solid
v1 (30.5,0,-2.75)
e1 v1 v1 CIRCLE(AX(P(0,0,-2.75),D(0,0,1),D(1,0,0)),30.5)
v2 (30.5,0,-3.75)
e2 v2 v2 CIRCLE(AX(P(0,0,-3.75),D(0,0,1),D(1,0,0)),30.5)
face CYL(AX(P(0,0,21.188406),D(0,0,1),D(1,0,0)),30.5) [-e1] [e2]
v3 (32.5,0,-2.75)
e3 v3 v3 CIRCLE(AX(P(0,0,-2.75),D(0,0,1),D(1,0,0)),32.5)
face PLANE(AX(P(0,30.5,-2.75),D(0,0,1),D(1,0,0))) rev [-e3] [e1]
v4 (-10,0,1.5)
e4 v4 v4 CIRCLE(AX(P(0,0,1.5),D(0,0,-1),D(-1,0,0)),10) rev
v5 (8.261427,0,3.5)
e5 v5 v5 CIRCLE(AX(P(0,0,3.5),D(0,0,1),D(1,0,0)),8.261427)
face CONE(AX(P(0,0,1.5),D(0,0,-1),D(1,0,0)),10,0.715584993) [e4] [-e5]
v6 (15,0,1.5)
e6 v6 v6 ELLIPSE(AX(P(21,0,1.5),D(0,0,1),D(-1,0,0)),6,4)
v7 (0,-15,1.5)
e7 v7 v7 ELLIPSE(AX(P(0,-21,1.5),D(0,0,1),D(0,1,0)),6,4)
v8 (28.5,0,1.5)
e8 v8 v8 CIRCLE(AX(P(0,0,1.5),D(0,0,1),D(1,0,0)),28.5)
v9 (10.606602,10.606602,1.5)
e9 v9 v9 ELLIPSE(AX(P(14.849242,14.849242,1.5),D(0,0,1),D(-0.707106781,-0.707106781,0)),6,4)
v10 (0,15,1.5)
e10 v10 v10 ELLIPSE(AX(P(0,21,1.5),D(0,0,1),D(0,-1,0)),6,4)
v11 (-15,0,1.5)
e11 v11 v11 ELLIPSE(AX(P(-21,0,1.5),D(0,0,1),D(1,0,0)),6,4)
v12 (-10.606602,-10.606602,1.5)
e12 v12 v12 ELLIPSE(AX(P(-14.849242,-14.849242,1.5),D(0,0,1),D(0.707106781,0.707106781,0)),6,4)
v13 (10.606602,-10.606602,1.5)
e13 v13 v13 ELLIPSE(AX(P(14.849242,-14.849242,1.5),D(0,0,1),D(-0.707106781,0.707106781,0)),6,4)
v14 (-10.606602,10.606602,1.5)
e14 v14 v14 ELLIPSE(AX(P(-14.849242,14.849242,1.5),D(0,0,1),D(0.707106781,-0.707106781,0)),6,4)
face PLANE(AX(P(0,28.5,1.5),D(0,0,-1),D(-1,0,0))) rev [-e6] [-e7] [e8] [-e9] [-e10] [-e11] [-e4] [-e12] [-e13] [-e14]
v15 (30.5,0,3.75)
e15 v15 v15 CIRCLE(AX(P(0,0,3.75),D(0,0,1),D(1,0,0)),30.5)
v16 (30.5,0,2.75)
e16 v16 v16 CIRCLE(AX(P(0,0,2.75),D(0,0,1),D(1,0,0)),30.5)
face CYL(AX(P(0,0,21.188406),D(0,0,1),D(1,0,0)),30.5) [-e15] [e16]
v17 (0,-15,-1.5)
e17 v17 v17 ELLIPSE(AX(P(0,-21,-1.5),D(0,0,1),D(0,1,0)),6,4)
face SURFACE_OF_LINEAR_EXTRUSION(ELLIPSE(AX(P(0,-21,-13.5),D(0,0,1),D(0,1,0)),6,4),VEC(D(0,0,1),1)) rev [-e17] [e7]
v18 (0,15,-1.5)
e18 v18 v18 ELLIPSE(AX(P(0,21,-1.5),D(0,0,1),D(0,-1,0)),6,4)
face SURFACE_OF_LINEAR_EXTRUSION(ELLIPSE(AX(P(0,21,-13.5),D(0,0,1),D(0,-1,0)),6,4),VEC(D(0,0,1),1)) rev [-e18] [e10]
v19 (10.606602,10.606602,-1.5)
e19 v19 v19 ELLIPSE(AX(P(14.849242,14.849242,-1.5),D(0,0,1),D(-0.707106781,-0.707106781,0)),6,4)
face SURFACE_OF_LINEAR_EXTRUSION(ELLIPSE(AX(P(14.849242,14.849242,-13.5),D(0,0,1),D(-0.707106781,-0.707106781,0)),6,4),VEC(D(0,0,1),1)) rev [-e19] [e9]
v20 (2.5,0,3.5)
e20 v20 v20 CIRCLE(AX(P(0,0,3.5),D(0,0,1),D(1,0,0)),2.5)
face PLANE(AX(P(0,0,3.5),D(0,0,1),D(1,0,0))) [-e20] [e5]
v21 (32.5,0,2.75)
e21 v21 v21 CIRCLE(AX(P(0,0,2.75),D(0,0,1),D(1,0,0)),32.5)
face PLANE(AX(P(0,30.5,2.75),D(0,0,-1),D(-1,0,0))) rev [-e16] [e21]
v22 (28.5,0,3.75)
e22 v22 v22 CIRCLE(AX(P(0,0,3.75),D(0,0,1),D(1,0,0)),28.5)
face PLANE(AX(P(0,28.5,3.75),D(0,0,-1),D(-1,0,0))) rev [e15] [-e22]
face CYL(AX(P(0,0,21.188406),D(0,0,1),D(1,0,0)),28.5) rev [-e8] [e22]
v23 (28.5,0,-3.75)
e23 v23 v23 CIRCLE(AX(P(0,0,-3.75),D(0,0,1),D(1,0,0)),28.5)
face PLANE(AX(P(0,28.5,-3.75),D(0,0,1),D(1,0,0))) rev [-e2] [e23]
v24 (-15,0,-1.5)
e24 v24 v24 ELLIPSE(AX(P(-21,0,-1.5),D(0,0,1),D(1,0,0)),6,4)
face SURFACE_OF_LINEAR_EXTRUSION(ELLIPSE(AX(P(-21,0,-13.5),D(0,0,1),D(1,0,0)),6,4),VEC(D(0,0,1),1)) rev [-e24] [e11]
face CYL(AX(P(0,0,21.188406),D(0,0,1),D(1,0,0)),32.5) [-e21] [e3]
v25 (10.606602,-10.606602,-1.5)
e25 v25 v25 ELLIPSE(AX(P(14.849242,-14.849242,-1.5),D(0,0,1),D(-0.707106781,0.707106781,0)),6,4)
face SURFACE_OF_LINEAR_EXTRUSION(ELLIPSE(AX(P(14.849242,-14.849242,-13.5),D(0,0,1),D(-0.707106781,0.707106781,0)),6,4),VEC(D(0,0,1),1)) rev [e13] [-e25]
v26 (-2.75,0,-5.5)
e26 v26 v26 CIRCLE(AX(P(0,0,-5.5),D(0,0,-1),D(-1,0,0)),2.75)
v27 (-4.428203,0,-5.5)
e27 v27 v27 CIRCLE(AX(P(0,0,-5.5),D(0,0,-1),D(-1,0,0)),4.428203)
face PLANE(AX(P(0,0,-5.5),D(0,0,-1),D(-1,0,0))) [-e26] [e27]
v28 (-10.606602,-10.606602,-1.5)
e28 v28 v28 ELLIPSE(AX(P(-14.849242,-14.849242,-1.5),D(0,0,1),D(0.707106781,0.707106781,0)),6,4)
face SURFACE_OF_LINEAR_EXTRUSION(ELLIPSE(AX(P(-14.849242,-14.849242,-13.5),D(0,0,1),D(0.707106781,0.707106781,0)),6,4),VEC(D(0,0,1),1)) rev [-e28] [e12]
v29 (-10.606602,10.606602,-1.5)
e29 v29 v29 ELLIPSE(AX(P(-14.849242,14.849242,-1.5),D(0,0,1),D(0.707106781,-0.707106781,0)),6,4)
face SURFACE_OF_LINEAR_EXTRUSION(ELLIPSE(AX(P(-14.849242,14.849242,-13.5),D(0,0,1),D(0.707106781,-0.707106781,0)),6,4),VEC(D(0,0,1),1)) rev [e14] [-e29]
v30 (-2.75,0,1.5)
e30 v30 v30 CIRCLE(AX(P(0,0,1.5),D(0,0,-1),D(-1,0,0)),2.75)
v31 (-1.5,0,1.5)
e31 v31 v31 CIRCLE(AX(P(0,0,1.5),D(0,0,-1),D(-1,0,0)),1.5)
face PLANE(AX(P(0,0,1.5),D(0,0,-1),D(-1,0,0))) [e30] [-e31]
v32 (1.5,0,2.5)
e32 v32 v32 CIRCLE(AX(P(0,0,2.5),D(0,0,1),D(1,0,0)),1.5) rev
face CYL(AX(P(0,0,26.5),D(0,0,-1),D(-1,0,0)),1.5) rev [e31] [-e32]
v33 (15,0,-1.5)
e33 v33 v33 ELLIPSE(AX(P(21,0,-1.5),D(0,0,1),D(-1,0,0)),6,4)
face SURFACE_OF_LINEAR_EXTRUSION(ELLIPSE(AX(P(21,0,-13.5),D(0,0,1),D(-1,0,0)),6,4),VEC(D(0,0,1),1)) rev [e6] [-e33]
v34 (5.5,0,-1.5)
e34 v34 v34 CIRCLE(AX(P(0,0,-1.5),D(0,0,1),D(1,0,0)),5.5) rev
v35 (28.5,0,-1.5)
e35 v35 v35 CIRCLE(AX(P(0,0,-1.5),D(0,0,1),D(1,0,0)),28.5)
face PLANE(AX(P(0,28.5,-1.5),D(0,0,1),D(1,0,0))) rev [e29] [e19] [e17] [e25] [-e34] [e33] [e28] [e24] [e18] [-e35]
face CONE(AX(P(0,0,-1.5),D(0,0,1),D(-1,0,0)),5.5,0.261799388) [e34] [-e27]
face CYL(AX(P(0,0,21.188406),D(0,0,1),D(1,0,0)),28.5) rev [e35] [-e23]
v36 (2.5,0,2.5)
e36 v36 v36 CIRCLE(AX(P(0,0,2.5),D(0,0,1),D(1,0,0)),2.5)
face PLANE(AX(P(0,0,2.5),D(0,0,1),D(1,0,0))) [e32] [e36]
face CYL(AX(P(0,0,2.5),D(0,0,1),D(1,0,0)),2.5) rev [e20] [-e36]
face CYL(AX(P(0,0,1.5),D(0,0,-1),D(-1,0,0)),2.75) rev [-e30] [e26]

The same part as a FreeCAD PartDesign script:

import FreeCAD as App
import Part
import Sketcher
from FreeCAD import Vector


def add_polygon(sketch, points):
    """Adds a closed chain of lines whose ends are joined by coincident constraints."""
    first, n = sketch.GeometryCount, len(points)
    for a, b in zip(points, points[1:] + points[:1]):
        sketch.addGeometry(Part.LineSegment(App.Vector(*a, 0), App.Vector(*b, 0)), False)
    for i in range(n):
        sketch.addConstraint(Sketcher.Constraint("Coincident", first + i, 2, first + (i + 1) % n, 1))

doc = App.newDocument("Part")
params = doc.addObject("Spreadsheet::Sheet", "Params")
for row, (alias, value) in enumerate([
    ("sketch1_width", "2 mm"),
    ("sketch1_height", "3 mm"),
    ("sketch1_height2", "1 mm"),
    ("sketch1_width2", "28.5 mm"),
    ("sketch1_height3", "5.5 mm"),
    ("revolution_angle", "360 deg"),
    ("sketch2_diameter", "20 mm"),
    ("pad1_length", "2 mm"),
    ("pad1_taper", "-41 deg"),
    ("sketch3_diameter", "11 mm"),
    ("pad2_length", "4 mm"),
    ("pad2_taper", "-15 deg"),
    ("sketch4_diameter", "5 mm"),
    ("pocket1_length", "1 mm"),
    ("sketch5_diameter", "3 mm"),
    ("pocket3_length", "15 mm"),
    ("sketch7_diameter", "5.5 mm"),
    ("pocket4_length", "7 mm"),
], start=1):
    params.set(f"A{row}", alias)
    params.set(f"B{row}", "=" + value)
    params.setAlias(f"B{row}", alias)

body = doc.addObject("PartDesign::Body", "Body")

sketch1 = body.newObject("Sketcher::SketchObject", "Sketch")
sketch1.AttachmentSupport = (doc.getObject("YZ_Plane"), [""])
sketch1.MapMode = "FlatFace"
add_polygon(sketch1, [(28.5, 3.8), (28.5, 1.5), (0, 1.5), (0, -1.5), (28.5, -1.5), (28.5, -3.8), (30.5, -3.8), (30.5, -2.8), (32.5, -2.8), (32.5, 2.8), (30.5, 2.8), (30.5, 3.8)])
sketch1.addConstraint(Sketcher.Constraint("Vertical", 0))
sketch1.addConstraint(Sketcher.Constraint("Horizontal", 1))
sketch1.addConstraint(Sketcher.Constraint("Vertical", 2))
sketch1.addConstraint(Sketcher.Constraint("Horizontal", 3))
sketch1.addConstraint(Sketcher.Constraint("Vertical", 4))
sketch1.addConstraint(Sketcher.Constraint("Horizontal", 5))
sketch1.addConstraint(Sketcher.Constraint("Vertical", 6))
sketch1.addConstraint(Sketcher.Constraint("Horizontal", 7))
sketch1.addConstraint(Sketcher.Constraint("Vertical", 8))
sketch1.addConstraint(Sketcher.Constraint("Horizontal", 9))
sketch1.addConstraint(Sketcher.Constraint("Vertical", 10))
sketch1.addConstraint(Sketcher.Constraint("Horizontal", 11))
sketch1.addConstraint(Sketcher.Constraint("Symmetric", 1, 2, 2, 2, -1, 1))
sketch1.addConstraint(Sketcher.Constraint("Symmetric", 6, 2, 9, 2, -1))
sketch1.addConstraint(Sketcher.Constraint("Symmetric", 4, 2, 11, 2, -1))
sketch1.addConstraint(Sketcher.Constraint("Equal", 5, 7))
sketch1.addConstraint(Sketcher.Constraint("DistanceX", 5, 1, 5, 2, 2.0))
sketch1.addConstraint(Sketcher.Constraint("DistanceY", 2, 2, 2, 1, 3.0))
sketch1.addConstraint(Sketcher.Constraint("DistanceY", 6, 1, 6, 2, 1.0))
sketch1.addConstraint(Sketcher.Constraint("DistanceX", 1, 2, 1, 1, 28.5))
sketch1.addConstraint(Sketcher.Constraint("DistanceY", 8, 1, 8, 2, 5.5))
sketch1.setExpression("Constraints[28]", "Params.sketch1_width")
sketch1.setExpression("Constraints[29]", "Params.sketch1_height")
sketch1.setExpression("Constraints[30]", "Params.sketch1_height2")
sketch1.setExpression("Constraints[31]", "Params.sketch1_width2")
sketch1.setExpression("Constraints[32]", "Params.sketch1_height3")
revolution = body.newObject("PartDesign::Revolution", "Revolution")
revolution.Profile = sketch1
revolution.ReferenceAxis = (sketch1, ["V_Axis"])
revolution.setExpression("Angle", "Params.revolution_angle")

sketch2 = body.newObject("Sketcher::SketchObject", "Sketch001")
sketch2.AttachmentSupport = (doc.getObject("XY_Plane"), [""])
sketch2.MapMode = "FlatFace"
sketch2.AttachmentOffset = App.Placement(Vector(0, 0, 1.5), App.Rotation())
sketch2.addGeometry(Part.Circle(Vector(0, 0, 0), Vector(0, 0, 1), 10), False)
sketch2.addConstraint(Sketcher.Constraint("Coincident", 0, 3, -1, 1))
sketch2.addConstraint(Sketcher.Constraint("Diameter", 0, 20.0))
sketch2.setExpression("Constraints[1]", "Params.sketch2_diameter")
pad1 = body.newObject("PartDesign::Pad", "Pad")
pad1.Profile = sketch2
pad1.setExpression("Length", "Params.pad1_length")
pad1.setExpression("TaperAngle", "Params.pad1_taper")

sketch3 = body.newObject("Sketcher::SketchObject", "Sketch002")
sketch3.AttachmentSupport = (doc.getObject("XY_Plane"), [""])
sketch3.MapMode = "FlatFace"
sketch3.AttachmentOffset = App.Placement(Vector(0, 0, -1.5), App.Rotation())
sketch3.addGeometry(Part.Circle(Vector(0, 0, 0), Vector(0, 0, 1), 6), False)
sketch3.addConstraint(Sketcher.Constraint("Coincident", 0, 3, -1, 1))
sketch3.addConstraint(Sketcher.Constraint("Diameter", 0, 11.0))
sketch3.setExpression("Constraints[1]", "Params.sketch3_diameter")
pad2 = body.newObject("PartDesign::Pad", "Pad001")
pad2.Profile = sketch3
pad2.setExpression("Length", "Params.pad2_length")
pad2.Reversed = True
pad2.setExpression("TaperAngle", "Params.pad2_taper")

sketch4 = body.newObject("Sketcher::SketchObject", "Sketch003")
sketch4.AttachmentSupport = (doc.getObject("XY_Plane"), [""])
sketch4.MapMode = "FlatFace"
sketch4.AttachmentOffset = App.Placement(Vector(0, 0, 3.5), App.Rotation())
sketch4.addGeometry(Part.Circle(Vector(0, 0, 0), Vector(0, 0, 1), 2.5), False)
sketch4.addConstraint(Sketcher.Constraint("Coincident", 0, 3, -1, 1))
sketch4.addConstraint(Sketcher.Constraint("Diameter", 0, 5.0))
sketch4.setExpression("Constraints[1]", "Params.sketch4_diameter")
pocket1 = body.newObject("PartDesign::Pocket", "Pocket")
pocket1.Profile = sketch4
pocket1.setExpression("Length", "Params.pocket1_length")

sketch5 = body.newObject("Sketcher::SketchObject", "Sketch004")
sketch5.AttachmentSupport = (doc.getObject("XY_Plane"), [""])
sketch5.MapMode = "FlatFace"
sketch5.AttachmentOffset = App.Placement(Vector(0, 0, 2.5), App.Rotation())
sketch5.addGeometry(Part.Circle(Vector(0, 0, 0), Vector(0, 0, 1), 1.5), False)
sketch5.addConstraint(Sketcher.Constraint("Coincident", 0, 3, -1, 1))
sketch5.addConstraint(Sketcher.Constraint("Diameter", 0, 3.0))
sketch5.setExpression("Constraints[1]", "Params.sketch5_diameter")
pocket2 = body.newObject("PartDesign::Pocket", "Pocket001")
pocket2.Profile = sketch5
pocket2.Type = "ThroughAll"
pocket2.Midplane = True

sketch6 = body.newObject("Sketcher::SketchObject", "Sketch005")
sketch6.AttachmentSupport = (doc.getObject("XY_Plane"), [""])
sketch6.MapMode = "FlatFace"
sketch6.AttachmentOffset = App.Placement(Vector(0, 0, 1.5), App.Rotation())
sketch6.addGeometry(Part.Ellipse(Vector(0, 27, 0), Vector(-4, 21, 0), Vector(0, 21, 0)), False)
sketch6.addConstraint(Sketcher.Constraint("Block", 0))
pocket3 = body.newObject("PartDesign::Pocket", "Pocket002")
pocket3.Profile = sketch6
pocket3.setExpression("Length", "Params.pocket3_length")
doc.recompute()

polarpattern = body.newObject("PartDesign::PolarPattern", "PolarPattern")
polarpattern.Originals = [pocket3]
polarpattern.Axis = (doc.getObject("Z_Axis"), [""])
polarpattern.Angle = 360
polarpattern.Occurrences = 8
body.Tip = polarpattern

sketch7 = body.newObject("Sketcher::SketchObject", "Sketch006")
sketch7.AttachmentSupport = (doc.getObject("XY_Plane"), [""])
sketch7.MapMode = "FlatFace"
sketch7.AttachmentOffset = App.Placement(Vector(0, 0, -5.5), App.Rotation())
sketch7.addGeometry(Part.Circle(Vector(0, 0, 0), Vector(0, 0, 1), 2.8), False)
sketch7.addConstraint(Sketcher.Constraint("Coincident", 0, 3, -1, 1))
sketch7.addConstraint(Sketcher.Constraint("Diameter", 0, 5.5))
sketch7.setExpression("Constraints[1]", "Params.sketch7_diameter")
pocket4 = body.newObject("PartDesign::Pocket", "Pocket003")
pocket4.Profile = sketch7
pocket4.setExpression("Length", "Params.pocket4_length")
pocket4.Reversed = True

doc.recompute()
